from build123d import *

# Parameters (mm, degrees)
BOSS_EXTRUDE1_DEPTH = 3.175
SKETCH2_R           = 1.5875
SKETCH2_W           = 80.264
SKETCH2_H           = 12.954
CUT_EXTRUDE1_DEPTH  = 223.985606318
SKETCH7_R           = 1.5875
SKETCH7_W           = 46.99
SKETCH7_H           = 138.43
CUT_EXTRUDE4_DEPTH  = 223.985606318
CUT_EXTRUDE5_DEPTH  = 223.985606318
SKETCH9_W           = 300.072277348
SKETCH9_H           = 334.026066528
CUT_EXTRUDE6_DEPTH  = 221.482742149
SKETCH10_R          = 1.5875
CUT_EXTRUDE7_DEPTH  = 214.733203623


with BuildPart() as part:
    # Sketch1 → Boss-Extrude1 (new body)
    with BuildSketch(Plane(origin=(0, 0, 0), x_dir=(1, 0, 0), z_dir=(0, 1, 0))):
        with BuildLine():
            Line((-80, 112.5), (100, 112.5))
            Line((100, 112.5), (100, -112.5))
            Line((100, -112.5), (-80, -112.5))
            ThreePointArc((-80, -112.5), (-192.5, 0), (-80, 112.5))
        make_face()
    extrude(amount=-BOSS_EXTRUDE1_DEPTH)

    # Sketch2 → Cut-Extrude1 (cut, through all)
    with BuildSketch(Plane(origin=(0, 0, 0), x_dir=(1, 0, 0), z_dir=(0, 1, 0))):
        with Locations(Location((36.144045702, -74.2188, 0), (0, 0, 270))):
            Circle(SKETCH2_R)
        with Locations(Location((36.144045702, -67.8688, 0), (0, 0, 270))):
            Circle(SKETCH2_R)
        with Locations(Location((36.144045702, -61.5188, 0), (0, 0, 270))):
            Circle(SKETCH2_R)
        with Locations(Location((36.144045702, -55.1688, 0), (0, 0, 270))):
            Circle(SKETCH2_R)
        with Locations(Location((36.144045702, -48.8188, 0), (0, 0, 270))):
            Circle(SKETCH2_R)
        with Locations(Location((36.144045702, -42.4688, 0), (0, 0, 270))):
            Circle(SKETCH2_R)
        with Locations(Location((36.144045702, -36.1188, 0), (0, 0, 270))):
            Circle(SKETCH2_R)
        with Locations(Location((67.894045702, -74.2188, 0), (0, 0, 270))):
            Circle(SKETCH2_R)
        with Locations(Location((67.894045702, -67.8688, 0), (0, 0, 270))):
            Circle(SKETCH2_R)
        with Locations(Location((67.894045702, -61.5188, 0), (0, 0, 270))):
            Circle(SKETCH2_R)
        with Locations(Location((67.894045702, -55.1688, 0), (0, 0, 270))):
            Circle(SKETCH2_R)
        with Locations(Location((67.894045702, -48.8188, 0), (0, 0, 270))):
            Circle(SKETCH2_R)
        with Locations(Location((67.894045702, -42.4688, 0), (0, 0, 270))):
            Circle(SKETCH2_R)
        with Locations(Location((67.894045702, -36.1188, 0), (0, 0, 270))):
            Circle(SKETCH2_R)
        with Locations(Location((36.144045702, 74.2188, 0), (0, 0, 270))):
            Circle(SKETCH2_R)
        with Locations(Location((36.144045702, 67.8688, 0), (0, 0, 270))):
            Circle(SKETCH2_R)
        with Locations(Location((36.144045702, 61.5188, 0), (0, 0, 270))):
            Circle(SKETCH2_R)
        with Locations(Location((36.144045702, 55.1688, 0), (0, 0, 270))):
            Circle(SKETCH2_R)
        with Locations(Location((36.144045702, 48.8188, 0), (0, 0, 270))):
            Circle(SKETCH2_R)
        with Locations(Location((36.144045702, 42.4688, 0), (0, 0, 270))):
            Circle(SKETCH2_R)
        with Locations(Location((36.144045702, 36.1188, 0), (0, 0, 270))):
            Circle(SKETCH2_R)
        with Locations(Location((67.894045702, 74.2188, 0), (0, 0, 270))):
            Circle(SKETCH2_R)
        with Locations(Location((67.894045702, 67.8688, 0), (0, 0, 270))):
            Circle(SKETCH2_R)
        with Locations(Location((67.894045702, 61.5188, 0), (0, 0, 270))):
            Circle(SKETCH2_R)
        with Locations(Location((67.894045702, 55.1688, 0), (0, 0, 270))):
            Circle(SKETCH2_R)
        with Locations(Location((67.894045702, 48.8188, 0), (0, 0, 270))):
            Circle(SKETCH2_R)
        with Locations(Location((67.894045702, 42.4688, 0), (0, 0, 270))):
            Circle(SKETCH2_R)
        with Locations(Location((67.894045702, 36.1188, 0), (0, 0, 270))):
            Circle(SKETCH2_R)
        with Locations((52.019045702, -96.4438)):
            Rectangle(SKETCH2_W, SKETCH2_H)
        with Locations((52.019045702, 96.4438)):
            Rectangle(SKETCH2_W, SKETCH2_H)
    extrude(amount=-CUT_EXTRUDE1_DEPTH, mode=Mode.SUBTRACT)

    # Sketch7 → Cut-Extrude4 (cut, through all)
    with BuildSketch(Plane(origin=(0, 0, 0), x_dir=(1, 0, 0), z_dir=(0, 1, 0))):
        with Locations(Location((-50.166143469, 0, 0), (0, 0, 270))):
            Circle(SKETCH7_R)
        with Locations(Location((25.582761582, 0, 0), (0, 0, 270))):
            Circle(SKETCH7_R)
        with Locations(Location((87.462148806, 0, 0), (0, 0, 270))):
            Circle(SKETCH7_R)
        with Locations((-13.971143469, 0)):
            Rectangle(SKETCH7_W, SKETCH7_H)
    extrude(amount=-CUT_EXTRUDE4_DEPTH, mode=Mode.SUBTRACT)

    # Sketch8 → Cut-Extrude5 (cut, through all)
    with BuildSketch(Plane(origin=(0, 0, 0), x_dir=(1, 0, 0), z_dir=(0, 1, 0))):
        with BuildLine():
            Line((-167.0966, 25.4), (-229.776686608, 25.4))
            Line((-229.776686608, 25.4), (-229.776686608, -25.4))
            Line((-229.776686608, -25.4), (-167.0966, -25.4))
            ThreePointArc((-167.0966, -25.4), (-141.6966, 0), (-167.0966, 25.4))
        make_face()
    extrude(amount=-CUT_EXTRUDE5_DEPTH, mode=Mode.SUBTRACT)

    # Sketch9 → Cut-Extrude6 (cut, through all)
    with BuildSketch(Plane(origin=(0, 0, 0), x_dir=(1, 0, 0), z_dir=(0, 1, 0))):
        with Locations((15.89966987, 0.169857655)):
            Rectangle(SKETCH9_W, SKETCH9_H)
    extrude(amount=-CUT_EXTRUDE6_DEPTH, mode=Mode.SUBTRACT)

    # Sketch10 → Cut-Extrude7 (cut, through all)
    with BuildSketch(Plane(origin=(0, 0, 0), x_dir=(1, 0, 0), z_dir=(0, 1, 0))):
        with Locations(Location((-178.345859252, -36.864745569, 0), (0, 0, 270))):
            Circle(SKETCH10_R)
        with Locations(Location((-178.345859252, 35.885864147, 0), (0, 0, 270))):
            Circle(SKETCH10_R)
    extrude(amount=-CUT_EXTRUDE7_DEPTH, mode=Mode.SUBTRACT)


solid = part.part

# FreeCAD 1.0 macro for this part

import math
import FreeCAD as App
import Part
import Sketcher
from FreeCAD import Vector
Q = App.Units.Quantity


def add_polygon(sketch, points):
    """Adds a closed chain of lines whose ends are joined by coincident constraints."""
    first, n = sketch.GeometryCount, len(points)
    for a, b in zip(points, points[1:] + points[:1]):
        sketch.addGeometry(Part.LineSegment(App.Vector(*a, 0), App.Vector(*b, 0)), False)
    for i in range(n):
        sketch.addConstraint(Sketcher.Constraint("Coincident", first + i, 2, first + (i + 1) % n, 1))

doc = App.newDocument("Part")
body = doc.addObject("PartDesign::Body", "Body")

sketch1 = body.newObject("Sketcher::SketchObject", "Sketch")
sketch1.AttachmentSupport = (doc.getObject("XZ_Plane"), [""])
sketch1.MapMode = "FlatFace"
sketch1.addGeometry(Part.LineSegment(Vector(100, -112, 0), Vector(-80, -112, 0)), False)
sketch1.addGeometry(Part.ArcOfCircle(Part.Circle(Vector(-80, 0, 0), Vector(0, 0, 1), 112), math.radians(90), math.radians(270)), False)
sketch1.addGeometry(Part.LineSegment(Vector(-80, 112, 0), Vector(100, 112, 0)), False)
sketch1.addGeometry(Part.LineSegment(Vector(100, 112, 0), Vector(100, -112, 0)), False)
sketch1.addConstraint(Sketcher.Constraint("Tangent", 0, 2, 1, 2))
sketch1.addConstraint(Sketcher.Constraint("Tangent", 1, 1, 2, 1))
sketch1.addConstraint(Sketcher.Constraint("Coincident", 2, 2, 3, 1))
sketch1.addConstraint(Sketcher.Constraint("Coincident", 3, 2, 0, 1))
sketch1.addConstraint(Sketcher.Constraint("Horizontal", 0))
sketch1.addConstraint(Sketcher.Constraint("Horizontal", 2))
sketch1.addConstraint(Sketcher.Constraint("Vertical", 3))
sketch1.addConstraint(Sketcher.Constraint("PointOnObject", 1, 3, -1))
sketch1.addConstraint(Sketcher.Constraint("Radius", 1, 112.5))
sketch1.addConstraint(Sketcher.Constraint("DistanceX", 0, 2, 0, 1, 180.0))
sketch1.addConstraint(Sketcher.Constraint("DistanceX", 1, 3, -1, 1, 80.0))
pad1 = body.newObject("PartDesign::Pad", "Pad")
pad1.Profile = sketch1
pad1.Length = Q("0.125 in")

sketch2 = body.newObject("Sketcher::SketchObject", "Sketch001")
sketch2.AttachmentSupport = (doc.getObject("XZ_Plane"), [""])
sketch2.MapMode = "FlatFace"
sketch2.addGeometry(Part.Circle(Vector(36.1, 74.2, 0), Vector(0, 0, 1), 1.6), False)
sketch2.addGeometry(Part.Circle(Vector(36.1, 67.9, 0), Vector(0, 0, 1), 1.6), False)
sketch2.addGeometry(Part.Circle(Vector(36.1, 61.5, 0), Vector(0, 0, 1), 1.6), False)
sketch2.addGeometry(Part.Circle(Vector(36.1, 55.2, 0), Vector(0, 0, 1), 1.6), False)
sketch2.addGeometry(Part.Circle(Vector(36.1, 48.8, 0), Vector(0, 0, 1), 1.6), False)
sketch2.addGeometry(Part.Circle(Vector(36.1, 42.5, 0), Vector(0, 0, 1), 1.6), False)
sketch2.addGeometry(Part.Circle(Vector(36.1, 36.1, 0), Vector(0, 0, 1), 1.6), False)
sketch2.addGeometry(Part.Circle(Vector(67.9, 74.2, 0), Vector(0, 0, 1), 1.6), False)
sketch2.addGeometry(Part.Circle(Vector(67.9, 67.9, 0), Vector(0, 0, 1), 1.6), False)
sketch2.addGeometry(Part.Circle(Vector(67.9, 61.5, 0), Vector(0, 0, 1), 1.6), False)
sketch2.addGeometry(Part.Circle(Vector(67.9, 55.2, 0), Vector(0, 0, 1), 1.6), False)
sketch2.addGeometry(Part.Circle(Vector(67.9, 48.8, 0), Vector(0, 0, 1), 1.6), False)
sketch2.addGeometry(Part.Circle(Vector(67.9, 42.5, 0), Vector(0, 0, 1), 1.6), False)
sketch2.addGeometry(Part.Circle(Vector(67.9, 36.1, 0), Vector(0, 0, 1), 1.6), False)
sketch2.addGeometry(Part.Circle(Vector(36.1, -74.2, 0), Vector(0, 0, 1), 1.6), False)
sketch2.addGeometry(Part.Circle(Vector(36.1, -67.9, 0), Vector(0, 0, 1), 1.6), False)
sketch2.addGeometry(Part.Circle(Vector(36.1, -61.5, 0), Vector(0, 0, 1), 1.6), False)
sketch2.addGeometry(Part.Circle(Vector(36.1, -55.2, 0), Vector(0, 0, 1), 1.6), False)
sketch2.addGeometry(Part.Circle(Vector(36.1, -48.8, 0), Vector(0, 0, 1), 1.6), False)
sketch2.addGeometry(Part.Circle(Vector(36.1, -42.5, 0), Vector(0, 0, 1), 1.6), False)
sketch2.addGeometry(Part.Circle(Vector(36.1, -36.1, 0), Vector(0, 0, 1), 1.6), False)
sketch2.addGeometry(Part.Circle(Vector(67.9, -74.2, 0), Vector(0, 0, 1), 1.6), False)
sketch2.addGeometry(Part.Circle(Vector(67.9, -67.9, 0), Vector(0, 0, 1), 1.6), False)
sketch2.addGeometry(Part.Circle(Vector(67.9, -61.5, 0), Vector(0, 0, 1), 1.6), False)
sketch2.addGeometry(Part.Circle(Vector(67.9, -55.2, 0), Vector(0, 0, 1), 1.6), False)
sketch2.addGeometry(Part.Circle(Vector(67.9, -48.8, 0), Vector(0, 0, 1), 1.6), False)
sketch2.addGeometry(Part.Circle(Vector(67.9, -42.5, 0), Vector(0, 0, 1), 1.6), False)
sketch2.addGeometry(Part.Circle(Vector(67.9, -36.1, 0), Vector(0, 0, 1), 1.6), False)
add_polygon(sketch2, [(11.9, 90), (11.9, 102.9), (92.2, 102.9), (92.2, 90)])
add_polygon(sketch2, [(11.9, -102.9), (11.9, -90), (92.2, -90), (92.2, -102.9)])
sketch2.addConstraint(Sketcher.Constraint("Vertical", 28))
sketch2.addConstraint(Sketcher.Constraint("Horizontal", 29))
sketch2.addConstraint(Sketcher.Constraint("Vertical", 30))
sketch2.addConstraint(Sketcher.Constraint("Horizontal", 31))
sketch2.addConstraint(Sketcher.Constraint("Vertical", 32))
sketch2.addConstraint(Sketcher.Constraint("Horizontal", 33))
sketch2.addConstraint(Sketcher.Constraint("Vertical", 34))
sketch2.addConstraint(Sketcher.Constraint("Horizontal", 35))
sketch2.addConstraint(Sketcher.Constraint("Equal", 0, 1))
sketch2.addConstraint(Sketcher.Constraint("Equal", 1, 2))
sketch2.addConstraint(Sketcher.Constraint("Equal", 2, 3))
sketch2.addConstraint(Sketcher.Constraint("Equal", 3, 4))
sketch2.addConstraint(Sketcher.Constraint("Equal", 4, 5))
sketch2.addConstraint(Sketcher.Constraint("Equal", 5, 6))
sketch2.addConstraint(Sketcher.Constraint("Equal", 6, 7))
sketch2.addConstraint(Sketcher.Constraint("Equal", 7, 8))
sketch2.addConstraint(Sketcher.Constraint("Equal", 8, 9))
sketch2.addConstraint(Sketcher.Constraint("Equal", 9, 10))
sketch2.addConstraint(Sketcher.Constraint("Equal", 10, 11))
sketch2.addConstraint(Sketcher.Constraint("Equal", 11, 12))
sketch2.addConstraint(Sketcher.Constraint("Equal", 12, 13))
sketch2.addConstraint(Sketcher.Constraint("Equal", 13, 14))
sketch2.addConstraint(Sketcher.Constraint("Equal", 14, 15))
sketch2.addConstraint(Sketcher.Constraint("Equal", 15, 16))
sketch2.addConstraint(Sketcher.Constraint("Equal", 16, 17))
sketch2.addConstraint(Sketcher.Constraint("Equal", 17, 18))
sketch2.addConstraint(Sketcher.Constraint("Equal", 18, 19))
sketch2.addConstraint(Sketcher.Constraint("Equal", 19, 20))
sketch2.addConstraint(Sketcher.Constraint("Equal", 20, 21))
sketch2.addConstraint(Sketcher.Constraint("Equal", 21, 22))
sketch2.addConstraint(Sketcher.Constraint("Equal", 22, 23))
sketch2.addConstraint(Sketcher.Constraint("Equal", 23, 24))
sketch2.addConstraint(Sketcher.Constraint("Equal", 24, 25))
sketch2.addConstraint(Sketcher.Constraint("Equal", 25, 26))
sketch2.addConstraint(Sketcher.Constraint("Equal", 26, 27))
sketch2.addConstraint(Sketcher.Constraint("Symmetric", 0, 3, 14, 3, -1))
sketch2.addConstraint(Sketcher.Constraint("Symmetric", 1, 3, 15, 3, -1))
sketch2.addConstraint(Sketcher.Constraint("Symmetric", 2, 3, 16, 3, -1))
sketch2.addConstraint(Sketcher.Constraint("Symmetric", 3, 3, 17, 3, -1))
sketch2.addConstraint(Sketcher.Constraint("Symmetric", 4, 3, 18, 3, -1))
sketch2.addConstraint(Sketcher.Constraint("Symmetric", 5, 3, 19, 3, -1))
sketch2.addConstraint(Sketcher.Constraint("Symmetric", 6, 3, 20, 3, -1))
sketch2.addConstraint(Sketcher.Constraint("Symmetric", 7, 3, 21, 3, -1))
sketch2.addConstraint(Sketcher.Constraint("Symmetric", 8, 3, 22, 3, -1))
sketch2.addConstraint(Sketcher.Constraint("Symmetric", 9, 3, 23, 3, -1))
sketch2.addConstraint(Sketcher.Constraint("Symmetric", 10, 3, 24, 3, -1))
sketch2.addConstraint(Sketcher.Constraint("Symmetric", 11, 3, 25, 3, -1))
sketch2.addConstraint(Sketcher.Constraint("Symmetric", 12, 3, 26, 3, -1))
sketch2.addConstraint(Sketcher.Constraint("Symmetric", 13, 3, 27, 3, -1))
sketch2.addConstraint(Sketcher.Constraint("Symmetric", 31, 2, 32, 2, -1))
sketch2.addConstraint(Sketcher.Constraint("Symmetric", 29, 2, 34, 2, -1))
sketch2.addConstraint(Sketcher.Constraint("Horizontal", 0, 3, 7, 3))
sketch2.addConstraint(Sketcher.Constraint("Horizontal", 1, 3, 8, 3))
sketch2.addConstraint(Sketcher.Constraint("Horizontal", 2, 3, 9, 3))
sketch2.addConstraint(Sketcher.Constraint("Horizontal", 3, 3, 10, 3))
sketch2.addConstraint(Sketcher.Constraint("Horizontal", 4, 3, 11, 3))
sketch2.addConstraint(Sketcher.Constraint("Horizontal", 5, 3, 12, 3))
sketch2.addConstraint(Sketcher.Constraint("Horizontal", 6, 3, 13, 3))
sketch2.addConstraint(Sketcher.Constraint("Vertical", 0, 3, 1, 3))
sketch2.addConstraint(Sketcher.Constraint("Vertical", 1, 3, 2, 3))
sketch2.addConstraint(Sketcher.Constraint("Vertical", 2, 3, 3, 3))
sketch2.addConstraint(Sketcher.Constraint("Vertical", 3, 3, 4, 3))
sketch2.addConstraint(Sketcher.Constraint("Vertical", 4, 3, 5, 3))
sketch2.addConstraint(Sketcher.Constraint("Vertical", 5, 3, 6, 3))
sketch2.addConstraint(Sketcher.Constraint("Vertical", 7, 3, 8, 3))
sketch2.addConstraint(Sketcher.Constraint("Vertical", 8, 3, 9, 3))
sketch2.addConstraint(Sketcher.Constraint("Vertical", 9, 3, 10, 3))
sketch2.addConstraint(Sketcher.Constraint("Vertical", 10, 3, 11, 3))
sketch2.addConstraint(Sketcher.Constraint("Vertical", 11, 3, 12, 3))
sketch2.addConstraint(Sketcher.Constraint("Vertical", 12, 3, 13, 3))
sketch2.addConstraint(Sketcher.Constraint("Diameter", 0, Q("0.125 in")))
sketch2.addConstraint(Sketcher.Constraint("DistanceY", 4, 3, 0, 3, Q("1 in")))
sketch2.addConstraint(Sketcher.Constraint("DistanceY", 5, 3, 1, 3, Q("1 in")))
sketch2.addConstraint(Sketcher.Constraint("DistanceY", 6, 3, 2, 3, Q("1 in")))
sketch2.addConstraint(Sketcher.Constraint("DistanceX", 29, 1, 29, 2, Q("3.16 in")))
sketch2.addConstraint(Sketcher.Constraint("DistanceY", 28, 1, 28, 2, Q("0.51 in")))
sketch2.addConstraint(Sketcher.Constraint("DistanceY", 2, 3, 0, 3, Q("0.5 in")))
sketch2.addConstraint(Sketcher.Constraint("DistanceY", 3, 3, 1, 3, Q("0.5 in")))
sketch2.addConstraint(Sketcher.Constraint("DistanceY", 1, 3, 0, 3, Q("0.25 in")))
sketch2.addConstraint(Sketcher.Constraint("DistanceX", 0, 3, 7, 3, Q("1.25 in")))
sketch2.addConstraint(Sketcher.Constraint("DistanceY", 0, 3, 28, 2, Q("1.13 in")))
sketch2.addConstraint(Sketcher.Constraint("DistanceY", -1, 1, 0, 3, Q("2.922 in")))
sketch2.addConstraint(Sketcher.Constraint("DistanceX", 28, 2, 0, 3, Q("0.955 in")))
sketch2.addConstraint(Sketcher.Constraint("DistanceX", -1, 1, 0, 3, 36.144046))
pocket1 = body.newObject("PartDesign::Pocket", "Pocket")
pocket1.Profile = sketch2
pocket1.Type = "ThroughAll"
pocket1.Reversed = True

sketch3 = body.newObject("Sketcher::SketchObject", "Sketch002")
sketch3.AttachmentSupport = (doc.getObject("XZ_Plane"), [""])
sketch3.MapMode = "FlatFace"
sketch3.addGeometry(Part.Circle(Vector(-50.2, 0, 0), Vector(0, 0, 1), 1.6), False)
sketch3.addGeometry(Part.Circle(Vector(25.6, 0, 0), Vector(0, 0, 1), 1.6), False)
sketch3.addGeometry(Part.Circle(Vector(87.5, 0, 0), Vector(0, 0, 1), 1.6), False)
add_polygon(sketch3, [(-37.5, -69.2), (-37.5, 69.2), (9.5, 69.2), (9.5, -69.2)])
sketch3.addConstraint(Sketcher.Constraint("Vertical", 3))
sketch3.addConstraint(Sketcher.Constraint("Horizontal", 4))
sketch3.addConstraint(Sketcher.Constraint("Vertical", 5))
sketch3.addConstraint(Sketcher.Constraint("Horizontal", 6))
sketch3.addConstraint(Sketcher.Constraint("Equal", 0, 1))
sketch3.addConstraint(Sketcher.Constraint("Equal", 1, 2))
sketch3.addConstraint(Sketcher.Constraint("PointOnObject", 0, 3, -1))
sketch3.addConstraint(Sketcher.Constraint("PointOnObject", 1, 3, -1))
sketch3.addConstraint(Sketcher.Constraint("PointOnObject", 2, 3, -1))
sketch3.addConstraint(Sketcher.Constraint("Diameter", 0, Q("0.125 in")))
sketch3.addConstraint(Sketcher.Constraint("DistanceX", 4, 1, 4, 2, Q("1.85 in")))
sketch3.addConstraint(Sketcher.Constraint("DistanceY", 3, 1, 3, 2, Q("5.45 in")))
sketch3.addConstraint(Sketcher.Constraint("DistanceX", 0, 3, 3, 2, Q("0.5 in")))
sketch3.addConstraint(Sketcher.Constraint("DistanceY", -1, 1, 3, 2, Q("2.725 in")))
sketch3.addConstraint(Sketcher.Constraint("DistanceX", -1, 1, 1, 3, 25.582762))
sketch3.addConstraint(Sketcher.Constraint("DistanceX", -1, 1, 2, 3, 87.462149))
sketch3.addConstraint(Sketcher.Constraint("DistanceX", 0, 3, -1, 1, 50.166143))
pocket2 = body.newObject("PartDesign::Pocket", "Pocket001")
pocket2.Profile = sketch3
pocket2.Type = "ThroughAll"
pocket2.Reversed = True

sketch4 = body.newObject("Sketcher::SketchObject", "Sketch003")
sketch4.AttachmentSupport = (doc.getObject("XZ_Plane"), [""])
sketch4.MapMode = "FlatFace"
sketch4.addGeometry(Part.LineSegment(Vector(-167, -25, 0), Vector(-230, -25, 0)), False)
sketch4.addGeometry(Part.LineSegment(Vector(-230, -25, 0), Vector(-230, 25, 0)), False)
sketch4.addGeometry(Part.LineSegment(Vector(-230, 25, 0), Vector(-167, 25, 0)), False)
sketch4.addGeometry(Part.ArcOfCircle(Part.Circle(Vector(-167, 0, 0), Vector(0, 0, 1), 25), math.radians(-90), math.radians(90)), False)
sketch4.addConstraint(Sketcher.Constraint("Coincident", 0, 2, 1, 1))
sketch4.addConstraint(Sketcher.Constraint("Coincident", 1, 2, 2, 1))
sketch4.addConstraint(Sketcher.Constraint("Tangent", 2, 2, 3, 2))
sketch4.addConstraint(Sketcher.Constraint("Tangent", 3, 1, 0, 1))
sketch4.addConstraint(Sketcher.Constraint("Horizontal", 0))
sketch4.addConstraint(Sketcher.Constraint("Vertical", 1))
sketch4.addConstraint(Sketcher.Constraint("Horizontal", 2))
sketch4.addConstraint(Sketcher.Constraint("PointOnObject", 3, 3, -1))
sketch4.addConstraint(Sketcher.Constraint("Radius", 3, Q("1 in")))
sketch4.addConstraint(Sketcher.Constraint("DistanceX", 3, 3, -1, 1, 167.0966))
sketch4.addConstraint(Sketcher.Constraint("DistanceX", 0, 2, 0, 1, 62.680087))
pocket3 = body.newObject("PartDesign::Pocket", "Pocket002")
pocket3.Profile = sketch4
pocket3.Type = "ThroughAll"
pocket3.Reversed = True

sketch5 = body.newObject("Sketcher::SketchObject", "Sketch004")
sketch5.AttachmentSupport = (doc.getObject("XZ_Plane"), [""])
sketch5.MapMode = "FlatFace"
add_polygon(sketch5, [(-134, -167), (-134, 167), (166, 167), (166, -167)])
sketch5.addConstraint(Sketcher.Constraint("Vertical", 0))
sketch5.addConstraint(Sketcher.Constraint("Horizontal", 1))
sketch5.addConstraint(Sketcher.Constraint("Vertical", 2))
sketch5.addConstraint(Sketcher.Constraint("Horizontal", 3))
sketch5.addConstraint(Sketcher.Constraint("DistanceX", 1, 1, 1, 2, 300.072277))
sketch5.addConstraint(Sketcher.Constraint("DistanceY", 0, 1, 0, 2, 334.026067))
sketch5.addConstraint(Sketcher.Constraint("DistanceX", 0, 2, -1, 1, 134.136469))
sketch5.addConstraint(Sketcher.Constraint("DistanceY", 2, 2, -1, 1, 167.182891))
pocket4 = body.newObject("PartDesign::Pocket", "Pocket003")
pocket4.Profile = sketch5
pocket4.Type = "ThroughAll"
pocket4.Reversed = True

sketch6 = body.newObject("Sketcher::SketchObject", "Sketch005")
sketch6.AttachmentSupport = (doc.getObject("XZ_Plane"), [""])
sketch6.MapMode = "FlatFace"
sketch6.addGeometry(Part.Circle(Vector(-178.3, 36.9, 0), Vector(0, 0, 1), 1.6), False)
sketch6.addGeometry(Part.Circle(Vector(-178.3, -35.9, 0), Vector(0, 0, 1), 1.6), False)
sketch6.addConstraint(Sketcher.Constraint("Equal", 0, 1))
sketch6.addConstraint(Sketcher.Constraint("Vertical", 0, 3, 1, 3))
sketch6.addConstraint(Sketcher.Constraint("Diameter", 0, Q("0.125 in")))
sketch6.addConstraint(Sketcher.Constraint("DistanceX", 0, 3, -1, 1, 178.345859))
sketch6.addConstraint(Sketcher.Constraint("DistanceY", 1, 3, 0, 3, 72.75061))
sketch6.addConstraint(Sketcher.Constraint("DistanceY", -1, 1, 0, 3, 36.864746))
pocket5 = body.newObject("PartDesign::Pocket", "Pocket004")
pocket5.Profile = sketch6
pocket5.Type = "ThroughAll"
pocket5.Reversed = True

doc.recompute()
